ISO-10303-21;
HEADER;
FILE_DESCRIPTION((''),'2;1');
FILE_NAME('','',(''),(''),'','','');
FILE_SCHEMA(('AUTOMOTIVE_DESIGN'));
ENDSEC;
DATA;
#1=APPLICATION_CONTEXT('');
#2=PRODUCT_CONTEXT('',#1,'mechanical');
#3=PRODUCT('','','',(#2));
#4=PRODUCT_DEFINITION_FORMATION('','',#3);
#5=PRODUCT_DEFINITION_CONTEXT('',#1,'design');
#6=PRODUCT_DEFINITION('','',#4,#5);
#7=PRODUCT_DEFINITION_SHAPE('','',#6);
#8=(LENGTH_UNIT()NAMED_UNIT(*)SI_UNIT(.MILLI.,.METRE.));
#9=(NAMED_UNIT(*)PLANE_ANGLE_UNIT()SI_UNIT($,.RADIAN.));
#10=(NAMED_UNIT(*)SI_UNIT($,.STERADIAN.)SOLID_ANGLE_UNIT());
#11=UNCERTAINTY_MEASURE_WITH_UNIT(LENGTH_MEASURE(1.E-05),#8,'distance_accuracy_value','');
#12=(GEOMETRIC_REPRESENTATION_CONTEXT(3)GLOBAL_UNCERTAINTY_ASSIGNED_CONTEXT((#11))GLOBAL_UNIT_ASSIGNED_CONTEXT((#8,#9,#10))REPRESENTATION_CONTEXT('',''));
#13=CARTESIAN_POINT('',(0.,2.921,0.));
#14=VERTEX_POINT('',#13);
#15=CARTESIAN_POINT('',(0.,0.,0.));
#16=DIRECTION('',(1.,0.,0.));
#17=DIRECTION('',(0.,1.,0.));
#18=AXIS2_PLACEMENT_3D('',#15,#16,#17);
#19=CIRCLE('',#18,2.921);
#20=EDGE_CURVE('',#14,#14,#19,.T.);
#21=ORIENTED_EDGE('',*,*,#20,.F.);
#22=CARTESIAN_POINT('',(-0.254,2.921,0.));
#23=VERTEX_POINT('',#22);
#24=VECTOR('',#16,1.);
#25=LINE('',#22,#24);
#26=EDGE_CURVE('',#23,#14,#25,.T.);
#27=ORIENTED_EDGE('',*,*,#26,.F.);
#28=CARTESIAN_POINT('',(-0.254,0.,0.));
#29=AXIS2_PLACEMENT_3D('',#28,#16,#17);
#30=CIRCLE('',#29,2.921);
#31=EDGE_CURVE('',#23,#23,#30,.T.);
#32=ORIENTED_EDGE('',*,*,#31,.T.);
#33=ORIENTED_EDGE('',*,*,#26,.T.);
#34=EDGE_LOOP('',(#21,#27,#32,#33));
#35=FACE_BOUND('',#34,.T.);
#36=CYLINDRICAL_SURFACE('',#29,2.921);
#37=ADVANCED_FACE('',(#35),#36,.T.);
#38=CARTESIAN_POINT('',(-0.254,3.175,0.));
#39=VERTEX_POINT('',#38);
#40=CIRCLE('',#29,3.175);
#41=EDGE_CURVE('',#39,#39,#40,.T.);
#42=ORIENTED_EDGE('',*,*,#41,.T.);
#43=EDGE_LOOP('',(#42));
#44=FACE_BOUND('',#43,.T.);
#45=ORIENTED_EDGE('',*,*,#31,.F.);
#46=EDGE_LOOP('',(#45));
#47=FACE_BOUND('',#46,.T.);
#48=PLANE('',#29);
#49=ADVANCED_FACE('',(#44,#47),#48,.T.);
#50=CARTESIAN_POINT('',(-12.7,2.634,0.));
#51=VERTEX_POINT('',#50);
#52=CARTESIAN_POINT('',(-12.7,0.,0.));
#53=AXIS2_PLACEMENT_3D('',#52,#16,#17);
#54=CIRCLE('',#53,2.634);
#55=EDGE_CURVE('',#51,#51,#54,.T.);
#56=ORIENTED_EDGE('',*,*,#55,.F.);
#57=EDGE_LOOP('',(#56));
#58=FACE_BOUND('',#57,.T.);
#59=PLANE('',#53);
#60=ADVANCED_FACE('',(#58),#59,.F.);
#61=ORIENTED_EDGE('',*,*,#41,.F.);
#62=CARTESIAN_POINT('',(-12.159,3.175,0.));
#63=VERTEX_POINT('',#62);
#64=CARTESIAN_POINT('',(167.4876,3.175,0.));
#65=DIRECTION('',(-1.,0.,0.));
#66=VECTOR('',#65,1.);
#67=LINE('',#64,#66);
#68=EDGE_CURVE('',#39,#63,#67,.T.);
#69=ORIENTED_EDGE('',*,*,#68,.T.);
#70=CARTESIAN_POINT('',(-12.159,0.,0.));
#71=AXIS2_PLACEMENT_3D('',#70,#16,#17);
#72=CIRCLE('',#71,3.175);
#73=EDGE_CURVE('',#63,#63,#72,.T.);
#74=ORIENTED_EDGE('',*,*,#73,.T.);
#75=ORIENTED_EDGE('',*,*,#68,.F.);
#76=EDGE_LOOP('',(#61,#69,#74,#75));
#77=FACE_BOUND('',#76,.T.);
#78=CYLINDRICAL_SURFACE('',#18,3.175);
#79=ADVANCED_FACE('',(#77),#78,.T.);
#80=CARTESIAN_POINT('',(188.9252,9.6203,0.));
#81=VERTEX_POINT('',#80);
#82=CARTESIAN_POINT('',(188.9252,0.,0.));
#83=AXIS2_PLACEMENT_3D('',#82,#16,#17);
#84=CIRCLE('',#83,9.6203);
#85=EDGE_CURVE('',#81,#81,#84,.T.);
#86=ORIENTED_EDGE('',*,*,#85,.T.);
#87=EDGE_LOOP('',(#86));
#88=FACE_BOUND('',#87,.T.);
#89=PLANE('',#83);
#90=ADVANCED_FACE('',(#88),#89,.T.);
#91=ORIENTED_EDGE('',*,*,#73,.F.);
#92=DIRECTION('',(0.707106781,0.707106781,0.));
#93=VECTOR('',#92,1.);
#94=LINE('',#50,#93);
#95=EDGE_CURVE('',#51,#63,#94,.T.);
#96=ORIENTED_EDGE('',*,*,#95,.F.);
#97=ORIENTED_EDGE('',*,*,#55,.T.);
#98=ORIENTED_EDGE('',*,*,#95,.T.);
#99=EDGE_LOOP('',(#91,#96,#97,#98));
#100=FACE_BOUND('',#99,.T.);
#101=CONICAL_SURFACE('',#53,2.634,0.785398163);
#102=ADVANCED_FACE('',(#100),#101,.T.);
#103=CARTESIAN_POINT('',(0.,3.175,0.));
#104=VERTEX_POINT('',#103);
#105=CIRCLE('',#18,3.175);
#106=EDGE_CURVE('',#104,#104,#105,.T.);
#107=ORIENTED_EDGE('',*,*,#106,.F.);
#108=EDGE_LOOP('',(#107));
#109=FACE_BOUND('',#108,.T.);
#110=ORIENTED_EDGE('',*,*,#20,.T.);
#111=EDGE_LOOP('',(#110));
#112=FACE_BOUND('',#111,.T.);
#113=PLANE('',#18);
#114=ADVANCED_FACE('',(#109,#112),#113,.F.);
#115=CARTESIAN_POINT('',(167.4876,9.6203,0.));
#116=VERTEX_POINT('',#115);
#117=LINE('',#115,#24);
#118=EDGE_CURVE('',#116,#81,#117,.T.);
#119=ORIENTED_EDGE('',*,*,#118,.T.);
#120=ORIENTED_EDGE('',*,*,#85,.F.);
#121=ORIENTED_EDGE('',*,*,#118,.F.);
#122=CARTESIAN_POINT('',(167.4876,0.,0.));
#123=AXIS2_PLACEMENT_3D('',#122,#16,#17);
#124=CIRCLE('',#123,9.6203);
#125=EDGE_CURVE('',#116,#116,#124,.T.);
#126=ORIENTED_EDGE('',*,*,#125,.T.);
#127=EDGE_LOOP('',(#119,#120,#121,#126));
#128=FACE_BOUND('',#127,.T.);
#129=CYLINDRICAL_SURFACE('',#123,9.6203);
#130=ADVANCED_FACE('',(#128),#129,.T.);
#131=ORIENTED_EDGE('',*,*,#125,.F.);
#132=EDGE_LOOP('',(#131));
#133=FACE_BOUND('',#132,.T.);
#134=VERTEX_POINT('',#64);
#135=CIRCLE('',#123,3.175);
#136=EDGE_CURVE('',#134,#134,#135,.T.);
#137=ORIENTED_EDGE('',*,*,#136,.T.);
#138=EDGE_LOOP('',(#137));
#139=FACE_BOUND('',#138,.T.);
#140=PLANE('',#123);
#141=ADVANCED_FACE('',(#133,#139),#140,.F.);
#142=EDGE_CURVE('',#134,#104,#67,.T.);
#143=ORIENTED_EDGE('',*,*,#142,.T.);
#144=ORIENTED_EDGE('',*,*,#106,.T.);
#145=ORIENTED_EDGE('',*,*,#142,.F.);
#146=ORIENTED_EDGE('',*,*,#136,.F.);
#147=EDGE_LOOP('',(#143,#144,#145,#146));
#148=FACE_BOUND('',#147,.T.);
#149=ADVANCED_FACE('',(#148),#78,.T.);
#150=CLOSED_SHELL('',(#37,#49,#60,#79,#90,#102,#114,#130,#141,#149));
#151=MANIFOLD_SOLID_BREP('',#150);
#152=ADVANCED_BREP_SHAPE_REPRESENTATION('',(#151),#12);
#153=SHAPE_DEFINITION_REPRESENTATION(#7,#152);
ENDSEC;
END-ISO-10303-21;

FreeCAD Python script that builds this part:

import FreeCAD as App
import Part
import Sketcher
from FreeCAD import Vector
Q = App.Units.Quantity

doc = App.newDocument("Part")
body = doc.addObject("PartDesign::Body", "Body")

# Sketch on XY plane
sketch1 = body.newObject("Sketcher::SketchObject", "Sketch")
sketch1.AttachmentSupport = (doc.getObject("XY_Plane"), [""])
sketch1.MapMode = "FlatFace"
sketch1.addGeometry(Part.LineSegment(Vector(0, 0, 0), Vector(188.9, 0, 0)), False)
sketch1.addGeometry(Part.LineSegment(Vector(188.9, 0, 0), Vector(188.9, 9.6, 0)), False)
sketch1.addGeometry(Part.LineSegment(Vector(188.9, 9.6, 0), Vector(167.5, 9.6, 0)), False)
sketch1.addGeometry(Part.LineSegment(Vector(167.5, 9.6, 0), Vector(167.5, 3.2, 0)), False)
sketch1.addGeometry(Part.LineSegment(Vector(167.5, 3.2, 0), Vector(0, 3.2, 0)), False)
sketch1.addGeometry(Part.LineSegment(Vector(0, 3.2, 0), Vector(0, 0, 0)), False)
sketch1.addConstraint(Sketcher.Constraint("Coincident", 0, 2, 1, 1))
sketch1.addConstraint(Sketcher.Constraint("Coincident", 1, 2, 2, 1))
sketch1.addConstraint(Sketcher.Constraint("Coincident", 2, 2, 3, 1))
sketch1.addConstraint(Sketcher.Constraint("Coincident", 3, 2, 4, 1))
sketch1.addConstraint(Sketcher.Constraint("Coincident", 4, 2, 5, 1))
sketch1.addConstraint(Sketcher.Constraint("Coincident", 5, 2, 0, 1))
sketch1.addConstraint(Sketcher.Constraint("Horizontal", 0))
sketch1.addConstraint(Sketcher.Constraint("Vertical", 1))
sketch1.addConstraint(Sketcher.Constraint("Horizontal", 2))
sketch1.addConstraint(Sketcher.Constraint("Vertical", 3))
sketch1.addConstraint(Sketcher.Constraint("Horizontal", 4))
sketch1.addConstraint(Sketcher.Constraint("Vertical", 5))
sketch1.addConstraint(Sketcher.Constraint("Coincident", 5, 2, -1, 1))
sketch1.addConstraint(Sketcher.Constraint("DistanceX", 0, 1, 0, 2, Q("7.438 in")))
sketch1.addConstraint(Sketcher.Constraint("DistanceX", 2, 2, 2, 1, Q("0.844 in")))
sketch1.addConstraint(Sketcher.Constraint("DistanceY", 5, 2, 5, 1, Q("0.125 in")))
sketch1.addConstraint(Sketcher.Constraint("DistanceY", 1, 1, 1, 2, 9.6203))
revolution = body.newObject("PartDesign::Revolution", "Revolution")
revolution.Profile = sketch1
revolution.ReferenceAxis = (sketch1, ["H_Axis"])
revolution.Angle = 360

# Sketch on XY plane
sketch2 = body.newObject("Sketcher::SketchObject", "Sketch001")
sketch2.AttachmentSupport = (doc.getObject("XY_Plane"), [""])
sketch2.MapMode = "FlatFace"
sketch2.addGeometry(Part.LineSegment(Vector(-12.7, 0, 0), Vector(0, 0, 0)), False)
sketch2.addGeometry(Part.LineSegment(Vector(0, 0, 0), Vector(0, 3.2, 0)), False)
sketch2.addGeometry(Part.LineSegment(Vector(0, 3.2, 0), Vector(-12.2, 3.2, 0)), False)
sketch2.addGeometry(Part.LineSegment(Vector(-12.2, 3.2, 0), Vector(-12.7, 2.6, 0)), False)
sketch2.addGeometry(Part.LineSegment(Vector(-12.7, 2.6, 0), Vector(-12.7, 0, 0)), False)
sketch2.addConstraint(Sketcher.Constraint("Coincident", 0, 2, 1, 1))
sketch2.addConstraint(Sketcher.Constraint("Coincident", 1, 2, 2, 1))
sketch2.addConstraint(Sketcher.Constraint("Coincident", 2, 2, 3, 1))
sketch2.addConstraint(Sketcher.Constraint("Coincident", 3, 2, 4, 1))
sketch2.addConstraint(Sketcher.Constraint("Coincident", 4, 2, 0, 1))
sketch2.addConstraint(Sketcher.Constraint("Horizontal", 0))
sketch2.addConstraint(Sketcher.Constraint("Vertical", 1))
sketch2.addConstraint(Sketcher.Constraint("Horizontal", 2))
sketch2.addConstraint(Sketcher.Constraint("Vertical", 4))
sketch2.addConstraint(Sketcher.Constraint("Coincident", 0, 2, -1, 1))
sketch2.addConstraint(Sketcher.Constraint("DistanceX", 0, 1, 0, 2, Q("0.5 in")))
sketch2.addConstraint(Sketcher.Constraint("Angle", 3, Q("-135 deg")))
sketch2.addConstraint(Sketcher.Constraint("DistanceY", 1, 1, 1, 2, Q("0.125 in")))
sketch2.addConstraint(Sketcher.Constraint("DistanceX", 2, 2, 2, 1, Q("0.4787 in")))
revolution2 = body.newObject("PartDesign::Revolution", "Revolution001")
revolution2.Profile = sketch2
revolution2.ReferenceAxis = (sketch2, ["H_Axis"])
revolution2.Angle = 360

# Sketch on XY plane
sketch3 = body.newObject("Sketcher::SketchObject", "Sketch002")
sketch3.AttachmentSupport = (doc.getObject("XY_Plane"), [""])
sketch3.MapMode = "FlatFace"
sketch3.addGeometry(Part.LineSegment(Vector(0, 3.43, 0), Vector(-0.25, 3.43, 0)), False)
sketch3.addGeometry(Part.LineSegment(Vector(-0.25, 3.43, 0), Vector(-0.25, 2.92, 0)), False)
sketch3.addGeometry(Part.LineSegment(Vector(-0.25, 2.92, 0), Vector(0, 2.92, 0)), False)
sketch3.addGeometry(Part.LineSegment(Vector(0, 2.92, 0), Vector(0, 3.43, 0)), False)
sketch3.addConstraint(Sketcher.Constraint("Coincident", 0, 2, 1, 1))
sketch3.addConstraint(Sketcher.Constraint("Coincident", 1, 2, 2, 1))
sketch3.addConstraint(Sketcher.Constraint("Coincident", 2, 2, 3, 1))
sketch3.addConstraint(Sketcher.Constraint("Coincident", 3, 2, 0, 1))
sketch3.addConstraint(Sketcher.Constraint("Horizontal", 0))
sketch3.addConstraint(Sketcher.Constraint("Vertical", 1))
sketch3.addConstraint(Sketcher.Constraint("Horizontal", 2))
sketch3.addConstraint(Sketcher.Constraint("Vertical", 3))
sketch3.addConstraint(Sketcher.Constraint("PointOnObject", 2, 2, -2))
sketch3.addConstraint(Sketcher.Constraint("DistanceX", 0, 2, 0, 1, Q("0.01 in")))
sketch3.addConstraint(Sketcher.Constraint("DistanceY", 1, 2, 1, 1, Q("0.02 in")))
sketch3.addConstraint(Sketcher.Constraint("DistanceY", -1, 1, 0, 2, Q("0.135 in")))
groove = body.newObject("PartDesign::Groove", "Groove")
groove.Profile = sketch3
groove.ReferenceAxis = (sketch3, ["H_Axis"])
groove.Angle = 360

doc.recompute()
